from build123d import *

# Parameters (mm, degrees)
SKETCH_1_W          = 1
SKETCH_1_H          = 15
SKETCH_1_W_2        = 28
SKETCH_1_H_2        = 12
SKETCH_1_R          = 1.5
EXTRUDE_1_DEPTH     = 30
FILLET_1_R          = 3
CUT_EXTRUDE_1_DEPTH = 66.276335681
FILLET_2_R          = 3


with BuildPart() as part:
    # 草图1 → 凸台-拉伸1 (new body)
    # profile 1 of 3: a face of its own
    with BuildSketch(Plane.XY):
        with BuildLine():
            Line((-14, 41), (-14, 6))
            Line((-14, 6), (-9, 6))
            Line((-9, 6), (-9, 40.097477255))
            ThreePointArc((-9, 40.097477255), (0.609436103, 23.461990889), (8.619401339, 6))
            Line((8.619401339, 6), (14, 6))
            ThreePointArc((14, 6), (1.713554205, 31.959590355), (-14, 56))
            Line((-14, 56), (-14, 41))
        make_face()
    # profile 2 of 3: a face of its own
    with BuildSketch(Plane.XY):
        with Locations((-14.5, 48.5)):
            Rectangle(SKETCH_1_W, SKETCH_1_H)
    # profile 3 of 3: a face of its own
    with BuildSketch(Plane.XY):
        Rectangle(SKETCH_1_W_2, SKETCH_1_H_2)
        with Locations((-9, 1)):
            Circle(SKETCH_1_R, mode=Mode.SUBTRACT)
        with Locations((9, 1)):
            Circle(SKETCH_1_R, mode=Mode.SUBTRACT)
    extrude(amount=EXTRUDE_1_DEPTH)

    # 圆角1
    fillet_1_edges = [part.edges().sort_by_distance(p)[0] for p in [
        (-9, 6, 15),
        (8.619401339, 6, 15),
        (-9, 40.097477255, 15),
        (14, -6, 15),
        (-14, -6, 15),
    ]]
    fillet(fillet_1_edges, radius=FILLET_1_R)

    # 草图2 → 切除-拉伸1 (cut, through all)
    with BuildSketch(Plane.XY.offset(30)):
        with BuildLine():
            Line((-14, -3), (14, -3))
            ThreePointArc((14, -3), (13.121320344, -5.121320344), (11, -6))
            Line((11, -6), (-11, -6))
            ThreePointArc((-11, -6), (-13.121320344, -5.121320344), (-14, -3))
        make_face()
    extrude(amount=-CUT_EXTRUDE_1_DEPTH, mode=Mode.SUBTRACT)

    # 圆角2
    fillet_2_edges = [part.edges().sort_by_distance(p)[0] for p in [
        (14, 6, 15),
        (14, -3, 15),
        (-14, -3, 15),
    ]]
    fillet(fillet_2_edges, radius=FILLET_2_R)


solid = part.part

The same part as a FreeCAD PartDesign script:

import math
import FreeCAD as App
import Part
import Sketcher


def edges_at(feature, points):
    """Names of the edges that pass closest to the given points."""
    edges = feature.Shape.Edges
    near = lambda p: min(range(len(edges)), key=lambda i: edges[i].distToShape(Part.Vertex(*p))[0])
    return sorted({f"Edge{near(p) + 1}" for p in points})

doc = App.newDocument("Part")
body = doc.addObject("PartDesign::Body", "Body")

sketch1 = body.newObject("Sketcher::SketchObject", "Sketch")
sketch1.AttachmentSupport = (doc.getObject("XY_Plane"), [""])
sketch1.MapMode = "FlatFace"
sketch1.addGeometry([
    Part.ArcOfCircle(Part.Circle(App.Vector(-181.5, -70.6, 0), App.Vector(0, 0, 1), 210), math.radians(21.41), math.radians(37.09)),
    Part.LineSegment(App.Vector(-14, 56, 0), App.Vector(-15, 56, 0)),
    Part.LineSegment(App.Vector(-15, 56, 0), App.Vector(-15, 41, 0)),
    Part.LineSegment(App.Vector(-15, 41, 0), App.Vector(-14, 41, 0)),
    Part.LineSegment(App.Vector(-14, 41, 0), App.Vector(-14, -6, 0)),
    Part.LineSegment(App.Vector(-14, -6, 0), App.Vector(14, -6, 0)),
    Part.LineSegment(App.Vector(14, -6, 0), App.Vector(14, 6, 0)),
    Part.LineSegment(App.Vector(-9, 6, 0), App.Vector(-9, 40.1, 0)),
    Part.ArcOfCircle(Part.Circle(App.Vector(-181.5, -70.6, 0), App.Vector(0, 0, 1), 205), math.radians(21.96), math.radians(32.7)),
    Part.LineSegment(App.Vector(8.6, 6, 0), App.Vector(-9, 6, 0)),
    Part.Circle(App.Vector(9, 1, 0), App.Vector(0, 0, 1), 1.5),
    Part.Circle(App.Vector(-9, 1, 0), App.Vector(0, 0, 1), 1.5),
], False)
sketch1.addConstraint([
    Sketcher.Constraint("Coincident", 0, 2, 1, 1),
    Sketcher.Constraint("Coincident", 1, 2, 2, 1),
    Sketcher.Constraint("Coincident", 2, 2, 3, 1),
    Sketcher.Constraint("Coincident", 3, 2, 4, 1),
    Sketcher.Constraint("Coincident", 4, 2, 5, 1),
    Sketcher.Constraint("Coincident", 5, 2, 6, 1),
    Sketcher.Constraint("Coincident", 6, 2, 0, 1),
    Sketcher.Constraint("Coincident", 7, 2, 8, 2),
    Sketcher.Constraint("Coincident", 8, 1, 9, 1),
    Sketcher.Constraint("Coincident", 9, 2, 7, 1),
    Sketcher.Constraint("Horizontal", 1),
    Sketcher.Constraint("Vertical", 2),
    Sketcher.Constraint("Horizontal", 3),
    Sketcher.Constraint("Vertical", 4),
    Sketcher.Constraint("Horizontal", 5),
    Sketcher.Constraint("Vertical", 6),
    Sketcher.Constraint("Vertical", 7),
    Sketcher.Constraint("Horizontal", 9),
    Sketcher.Constraint("Coincident", 8, 3, 0, 3),
    Sketcher.Constraint("Equal", 10, 11),
    Sketcher.Constraint("Symmetric", 4, 2, 6, 2, -1, 1),
    Sketcher.Constraint("Symmetric", 10, 3, 11, 3, -2),
    Sketcher.Constraint("Horizontal", 6, 2, 8, 1),
    Sketcher.Constraint("Vertical", 0, 2, 3, 2),
    Sketcher.Constraint("Vertical", 11, 3, 7, 2),
    Sketcher.Constraint("Diameter", 10, 3.0),
    Sketcher.Constraint("Radius", 0, 210.0),
    Sketcher.Constraint("Radius", 8, 205.0),
    Sketcher.Constraint("DistanceX", 1, 2, 1, 1, 1.0),
    Sketcher.Constraint("DistanceX", 5, 1, 5, 2, 28.0),
    Sketcher.Constraint("DistanceY", 2, 2, 2, 1, 15.0),
    Sketcher.Constraint("DistanceY", 4, 2, 4, 1, 47.0),
    Sketcher.Constraint("DistanceY", 6, 1, 6, 2, 12.0),
    Sketcher.Constraint("DistanceX", -1, 1, 10, 3, 9.0),
    Sketcher.Constraint("DistanceY", -1, 1, 10, 3, 1.0),
])
pad1 = body.newObject("PartDesign::Pad", "Pad")
pad1.Profile = sketch1
pad1.Length = 30
doc.recompute()

fillet = body.newObject("PartDesign::Fillet", "Fillet")
fillet.Base = (pad1, edges_at(pad1, [
    (-9, 6, 15),
    (8.619, 6, 15),
    (-9, 40.097, 15),
    (14, -6, 15),
    (-14, -6, 15),
]))
fillet.Radius = 3

sketch2 = body.newObject("Sketcher::SketchObject", "Sketch001")
sketch2.AttachmentSupport = (doc.getObject("XY_Plane"), [""])
sketch2.MapMode = "FlatFace"
sketch2.AttachmentOffset = App.Placement(App.Vector(0, 0, 30), App.Rotation())
sketch2.addGeometry([
    Part.LineSegment(App.Vector(14, -3, 0), App.Vector(-14, -3, 0)),
    Part.ArcOfCircle(Part.Circle(App.Vector(-11, -3, 0), App.Vector(0, 0, 1), 3), math.radians(180), math.radians(270)),
    Part.LineSegment(App.Vector(-11, -6, 0), App.Vector(11, -6, 0)),
    Part.ArcOfCircle(Part.Circle(App.Vector(11, -3, 0), App.Vector(0, 0, 1), 3), math.radians(-90), math.radians(0)),
], False)
sketch2.addConstraint([
    Sketcher.Constraint("Coincident", 0, 2, 1, 1),
    Sketcher.Constraint("Tangent", 1, 2, 2, 1),
    Sketcher.Constraint("Tangent", 2, 2, 3, 1),
    Sketcher.Constraint("Coincident", 3, 2, 0, 1),
    Sketcher.Constraint("Horizontal", 0),
    Sketcher.Constraint("Horizontal", 2),
    Sketcher.Constraint("Equal", 1, 3),
    Sketcher.Constraint("Horizontal", 3, 3, 0, 2),
    Sketcher.Constraint("Radius", 1, 3.0),
    Sketcher.Constraint("DistanceX", 0, 2, 0, 1, 28.0),
    Sketcher.Constraint("DistanceX", 1, 3, -1, 1, 11.0),
    Sketcher.Constraint("DistanceY", 1, 3, -1, 1, 3.0),
])
pocket1 = body.newObject("PartDesign::Pocket", "Pocket")
pocket1.Profile = sketch2
pocket1.Type = "ThroughAll"
doc.recompute()

fillet2 = body.newObject("PartDesign::Fillet", "Fillet001")
fillet2.Base = (pocket1, edges_at(pocket1, [(14, 6, 15), (14, -3, 15), (-14, -3, 15)]))
fillet2.Radius = 3

doc.recompute()
